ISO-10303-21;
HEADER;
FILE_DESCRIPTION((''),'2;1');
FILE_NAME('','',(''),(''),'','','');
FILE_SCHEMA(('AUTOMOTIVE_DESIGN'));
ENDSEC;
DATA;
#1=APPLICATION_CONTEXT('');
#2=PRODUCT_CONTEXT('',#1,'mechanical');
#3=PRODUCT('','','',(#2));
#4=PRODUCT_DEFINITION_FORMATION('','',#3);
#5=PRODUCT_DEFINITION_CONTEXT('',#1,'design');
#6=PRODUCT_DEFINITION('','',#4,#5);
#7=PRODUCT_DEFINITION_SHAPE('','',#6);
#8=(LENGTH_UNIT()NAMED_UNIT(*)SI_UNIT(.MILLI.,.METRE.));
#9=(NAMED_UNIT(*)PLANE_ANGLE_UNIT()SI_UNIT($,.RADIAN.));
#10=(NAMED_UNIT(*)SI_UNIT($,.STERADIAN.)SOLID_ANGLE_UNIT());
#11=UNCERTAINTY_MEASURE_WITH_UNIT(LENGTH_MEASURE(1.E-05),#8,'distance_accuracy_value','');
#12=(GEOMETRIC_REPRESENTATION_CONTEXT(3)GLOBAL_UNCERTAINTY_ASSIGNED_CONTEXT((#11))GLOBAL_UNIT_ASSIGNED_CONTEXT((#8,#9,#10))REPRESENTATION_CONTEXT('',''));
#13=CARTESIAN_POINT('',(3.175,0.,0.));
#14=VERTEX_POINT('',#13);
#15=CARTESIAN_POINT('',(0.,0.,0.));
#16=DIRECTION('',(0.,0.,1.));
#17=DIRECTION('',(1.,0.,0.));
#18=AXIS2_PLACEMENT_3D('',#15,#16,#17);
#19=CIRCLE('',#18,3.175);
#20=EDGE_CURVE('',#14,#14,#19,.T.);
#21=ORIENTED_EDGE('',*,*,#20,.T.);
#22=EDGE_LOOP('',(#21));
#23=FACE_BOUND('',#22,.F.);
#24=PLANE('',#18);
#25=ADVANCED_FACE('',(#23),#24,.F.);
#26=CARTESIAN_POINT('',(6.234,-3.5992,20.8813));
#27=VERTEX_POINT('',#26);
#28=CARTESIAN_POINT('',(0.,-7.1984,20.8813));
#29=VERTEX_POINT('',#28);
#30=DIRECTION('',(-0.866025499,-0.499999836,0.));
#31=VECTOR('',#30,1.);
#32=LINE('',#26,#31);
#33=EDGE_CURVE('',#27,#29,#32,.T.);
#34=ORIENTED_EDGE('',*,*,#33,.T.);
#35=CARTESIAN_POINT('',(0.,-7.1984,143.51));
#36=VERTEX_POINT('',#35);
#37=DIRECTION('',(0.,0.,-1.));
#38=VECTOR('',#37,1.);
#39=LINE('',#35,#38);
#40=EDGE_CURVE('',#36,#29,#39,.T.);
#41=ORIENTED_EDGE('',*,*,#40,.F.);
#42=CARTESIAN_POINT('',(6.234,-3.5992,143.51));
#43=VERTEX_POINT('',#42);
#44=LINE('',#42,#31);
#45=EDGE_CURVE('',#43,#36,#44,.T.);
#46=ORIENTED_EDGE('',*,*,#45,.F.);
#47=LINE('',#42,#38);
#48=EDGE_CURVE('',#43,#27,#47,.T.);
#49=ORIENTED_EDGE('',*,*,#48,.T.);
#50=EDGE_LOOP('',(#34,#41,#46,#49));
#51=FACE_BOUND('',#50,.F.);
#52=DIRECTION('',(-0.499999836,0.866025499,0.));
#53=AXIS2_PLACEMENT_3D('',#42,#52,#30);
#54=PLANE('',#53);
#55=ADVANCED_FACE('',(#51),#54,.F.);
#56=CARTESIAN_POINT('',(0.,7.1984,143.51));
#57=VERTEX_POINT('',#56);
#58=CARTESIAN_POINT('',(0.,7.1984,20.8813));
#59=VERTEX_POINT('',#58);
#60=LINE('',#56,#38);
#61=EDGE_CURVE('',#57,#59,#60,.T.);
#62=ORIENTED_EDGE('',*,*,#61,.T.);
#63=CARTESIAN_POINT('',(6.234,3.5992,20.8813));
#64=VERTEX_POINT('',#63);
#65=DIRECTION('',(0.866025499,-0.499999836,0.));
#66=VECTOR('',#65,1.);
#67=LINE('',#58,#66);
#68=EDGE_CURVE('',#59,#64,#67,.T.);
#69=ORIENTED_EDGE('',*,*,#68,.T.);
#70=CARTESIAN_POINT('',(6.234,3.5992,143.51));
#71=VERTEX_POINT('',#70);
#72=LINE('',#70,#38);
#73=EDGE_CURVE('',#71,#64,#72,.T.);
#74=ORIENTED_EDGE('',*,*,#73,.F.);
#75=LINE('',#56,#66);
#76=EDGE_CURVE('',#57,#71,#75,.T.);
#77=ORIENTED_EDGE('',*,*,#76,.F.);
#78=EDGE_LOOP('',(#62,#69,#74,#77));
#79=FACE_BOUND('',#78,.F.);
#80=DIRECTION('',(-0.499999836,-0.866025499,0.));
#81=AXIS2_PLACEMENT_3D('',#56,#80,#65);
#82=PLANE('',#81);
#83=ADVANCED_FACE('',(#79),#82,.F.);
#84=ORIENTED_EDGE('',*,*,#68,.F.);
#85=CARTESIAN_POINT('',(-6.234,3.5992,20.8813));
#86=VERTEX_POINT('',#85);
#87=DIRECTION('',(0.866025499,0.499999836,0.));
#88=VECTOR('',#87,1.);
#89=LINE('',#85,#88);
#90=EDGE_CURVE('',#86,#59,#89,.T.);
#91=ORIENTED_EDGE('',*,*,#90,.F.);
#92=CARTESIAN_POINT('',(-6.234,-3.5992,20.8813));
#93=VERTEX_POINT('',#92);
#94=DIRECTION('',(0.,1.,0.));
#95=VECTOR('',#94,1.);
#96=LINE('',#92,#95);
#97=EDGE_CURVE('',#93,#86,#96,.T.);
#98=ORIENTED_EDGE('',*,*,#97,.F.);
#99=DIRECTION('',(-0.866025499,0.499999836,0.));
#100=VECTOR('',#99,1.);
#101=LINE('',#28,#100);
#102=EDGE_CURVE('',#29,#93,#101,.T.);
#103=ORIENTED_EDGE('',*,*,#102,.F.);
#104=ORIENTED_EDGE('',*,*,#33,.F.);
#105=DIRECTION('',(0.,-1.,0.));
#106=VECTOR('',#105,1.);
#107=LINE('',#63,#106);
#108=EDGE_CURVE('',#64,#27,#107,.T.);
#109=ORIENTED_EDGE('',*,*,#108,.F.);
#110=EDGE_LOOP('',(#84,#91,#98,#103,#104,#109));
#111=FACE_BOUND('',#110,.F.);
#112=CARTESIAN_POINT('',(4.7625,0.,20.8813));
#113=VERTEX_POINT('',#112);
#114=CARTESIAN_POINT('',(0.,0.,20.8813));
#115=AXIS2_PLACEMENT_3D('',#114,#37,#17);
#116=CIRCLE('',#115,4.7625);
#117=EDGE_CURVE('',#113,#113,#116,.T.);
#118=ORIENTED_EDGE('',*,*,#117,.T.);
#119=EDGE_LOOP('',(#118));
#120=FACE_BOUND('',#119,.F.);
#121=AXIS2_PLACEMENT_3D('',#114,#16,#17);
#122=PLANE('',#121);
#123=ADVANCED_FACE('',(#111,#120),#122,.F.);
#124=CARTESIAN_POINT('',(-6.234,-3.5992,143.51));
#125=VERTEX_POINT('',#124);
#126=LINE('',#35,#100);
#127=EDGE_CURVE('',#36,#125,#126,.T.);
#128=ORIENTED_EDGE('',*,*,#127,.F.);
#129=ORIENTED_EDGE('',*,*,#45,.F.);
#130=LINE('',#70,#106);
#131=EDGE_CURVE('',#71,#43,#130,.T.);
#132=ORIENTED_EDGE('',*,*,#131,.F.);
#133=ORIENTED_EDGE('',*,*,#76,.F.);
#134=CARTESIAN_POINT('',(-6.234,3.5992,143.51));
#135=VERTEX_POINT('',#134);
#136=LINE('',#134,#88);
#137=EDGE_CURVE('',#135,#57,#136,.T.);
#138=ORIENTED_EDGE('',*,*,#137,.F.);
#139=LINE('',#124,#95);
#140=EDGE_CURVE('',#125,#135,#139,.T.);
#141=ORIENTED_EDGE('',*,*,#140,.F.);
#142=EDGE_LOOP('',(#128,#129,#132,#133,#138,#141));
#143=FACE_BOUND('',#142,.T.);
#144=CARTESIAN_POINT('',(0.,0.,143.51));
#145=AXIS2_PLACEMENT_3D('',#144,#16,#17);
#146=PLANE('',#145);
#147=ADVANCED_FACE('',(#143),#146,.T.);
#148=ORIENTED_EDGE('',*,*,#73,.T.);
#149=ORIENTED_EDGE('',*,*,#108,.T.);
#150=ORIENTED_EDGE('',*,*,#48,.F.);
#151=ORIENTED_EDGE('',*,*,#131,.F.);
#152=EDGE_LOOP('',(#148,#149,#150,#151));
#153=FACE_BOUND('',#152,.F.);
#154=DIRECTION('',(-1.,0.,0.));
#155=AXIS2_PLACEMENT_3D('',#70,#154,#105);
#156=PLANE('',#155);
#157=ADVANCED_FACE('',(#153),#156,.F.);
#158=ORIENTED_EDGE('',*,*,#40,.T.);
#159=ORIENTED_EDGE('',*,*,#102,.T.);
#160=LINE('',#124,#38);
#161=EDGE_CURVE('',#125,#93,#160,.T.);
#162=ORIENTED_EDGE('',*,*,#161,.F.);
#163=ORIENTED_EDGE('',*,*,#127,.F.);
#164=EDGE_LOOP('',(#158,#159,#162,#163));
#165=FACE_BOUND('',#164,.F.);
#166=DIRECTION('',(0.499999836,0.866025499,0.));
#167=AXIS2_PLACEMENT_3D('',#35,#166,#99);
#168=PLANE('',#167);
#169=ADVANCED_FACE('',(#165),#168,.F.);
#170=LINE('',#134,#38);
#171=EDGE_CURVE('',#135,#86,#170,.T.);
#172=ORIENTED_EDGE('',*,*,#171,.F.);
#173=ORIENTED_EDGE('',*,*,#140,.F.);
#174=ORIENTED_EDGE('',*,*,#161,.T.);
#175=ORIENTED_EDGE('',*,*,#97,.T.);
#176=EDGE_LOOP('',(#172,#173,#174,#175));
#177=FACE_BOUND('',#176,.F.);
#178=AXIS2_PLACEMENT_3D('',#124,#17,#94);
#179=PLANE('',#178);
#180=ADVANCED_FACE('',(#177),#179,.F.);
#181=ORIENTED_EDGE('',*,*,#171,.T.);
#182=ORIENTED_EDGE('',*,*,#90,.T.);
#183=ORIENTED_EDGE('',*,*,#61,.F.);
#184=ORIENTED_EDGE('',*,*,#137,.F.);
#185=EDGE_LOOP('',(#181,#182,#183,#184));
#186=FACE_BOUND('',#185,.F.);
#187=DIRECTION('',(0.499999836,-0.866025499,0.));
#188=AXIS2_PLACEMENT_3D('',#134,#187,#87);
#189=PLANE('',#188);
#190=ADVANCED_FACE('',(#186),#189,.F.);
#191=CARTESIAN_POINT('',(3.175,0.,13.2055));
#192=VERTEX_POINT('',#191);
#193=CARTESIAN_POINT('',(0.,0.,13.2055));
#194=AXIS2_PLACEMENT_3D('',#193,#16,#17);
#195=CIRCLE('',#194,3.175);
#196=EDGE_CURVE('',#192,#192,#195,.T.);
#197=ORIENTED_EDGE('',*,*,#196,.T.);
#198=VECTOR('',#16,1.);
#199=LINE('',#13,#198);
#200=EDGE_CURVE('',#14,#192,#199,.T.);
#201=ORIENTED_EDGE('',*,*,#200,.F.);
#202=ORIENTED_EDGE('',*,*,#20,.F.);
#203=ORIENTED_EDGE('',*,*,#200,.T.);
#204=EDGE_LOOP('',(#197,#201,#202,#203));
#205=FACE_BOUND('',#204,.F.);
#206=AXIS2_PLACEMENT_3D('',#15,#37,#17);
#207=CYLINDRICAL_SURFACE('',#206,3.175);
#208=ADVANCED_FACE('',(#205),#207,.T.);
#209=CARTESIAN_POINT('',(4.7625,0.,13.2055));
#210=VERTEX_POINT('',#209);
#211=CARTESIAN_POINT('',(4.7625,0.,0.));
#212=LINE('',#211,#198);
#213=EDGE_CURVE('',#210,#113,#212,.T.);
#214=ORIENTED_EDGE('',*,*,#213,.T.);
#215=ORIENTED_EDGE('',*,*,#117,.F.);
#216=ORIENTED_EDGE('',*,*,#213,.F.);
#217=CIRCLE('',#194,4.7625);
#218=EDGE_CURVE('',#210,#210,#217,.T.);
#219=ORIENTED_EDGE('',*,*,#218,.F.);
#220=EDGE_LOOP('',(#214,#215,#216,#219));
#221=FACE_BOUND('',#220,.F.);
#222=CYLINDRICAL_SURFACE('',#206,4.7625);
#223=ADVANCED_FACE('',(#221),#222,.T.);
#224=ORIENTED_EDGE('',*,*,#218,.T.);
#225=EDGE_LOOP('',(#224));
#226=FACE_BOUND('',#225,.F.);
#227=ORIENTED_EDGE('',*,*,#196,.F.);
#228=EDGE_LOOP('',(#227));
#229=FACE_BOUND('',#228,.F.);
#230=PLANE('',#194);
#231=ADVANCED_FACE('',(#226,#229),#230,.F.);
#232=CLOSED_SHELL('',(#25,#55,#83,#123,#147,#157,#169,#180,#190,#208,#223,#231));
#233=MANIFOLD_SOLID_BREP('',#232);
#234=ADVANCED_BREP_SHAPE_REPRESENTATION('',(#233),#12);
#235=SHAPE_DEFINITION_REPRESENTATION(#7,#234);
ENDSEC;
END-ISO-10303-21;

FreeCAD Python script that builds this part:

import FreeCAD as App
import Part
import Sketcher
Q = App.Units.Quantity


def add_polygon(sketch, points):
    """Adds a closed chain of lines whose ends are joined by coincident constraints."""
    first, n = sketch.GeometryCount, len(points)
    for a, b in zip(points, points[1:] + points[:1]):
        sketch.addGeometry(Part.LineSegment(App.Vector(*a, 0), App.Vector(*b, 0)), False)
    for i in range(n):
        sketch.addConstraint(Sketcher.Constraint("Coincident", first + i, 2, first + (i + 1) % n, 1))

doc = App.newDocument("Part")
body = doc.addObject("PartDesign::Body", "Body")

# Sketch on XY plane
sketch1 = doc.addObject("Sketcher::SketchObject", "Sketch")
body.addObject(sketch1)
sketch1.AttachmentSupport = (doc.XY_Plane, [""])
sketch1.MapMode = "FlatFace"
sketch1.addGeometry(Part.Circle(App.Vector(0, 0, 0), App.Vector(0, 0, 1), 4.8), False)
sketch1.addConstraint(Sketcher.Constraint("Coincident", 0, 3, -1, 1))
sketch1.addConstraint(Sketcher.Constraint("Diameter", 0, Q("0.375 in")))
pad1 = doc.addObject("PartDesign::Pad", "Pad")
body.addObject(pad1)
pad1.Profile = sketch1
pad1.Length = Q("5.65 in")

# Sketch on XY plane
sketch2 = doc.addObject("Sketcher::SketchObject", "Sketch001")
body.addObject(sketch2)
sketch2.AttachmentSupport = (doc.XY_Plane, [""])
sketch2.MapMode = "FlatFace"
sketch2.addGeometry(Part.Circle(App.Vector(0, 0, 0), App.Vector(0, 0, 1), 4.8), False)
sketch2.addGeometry(Part.Circle(App.Vector(0, 0, 0), App.Vector(0, 0, 1), 3.2), False)
sketch2.addConstraint(Sketcher.Constraint("Coincident", 0, 3, -1, 1))
sketch2.addConstraint(Sketcher.Constraint("Coincident", 1, 3, -1, 1))
sketch2.addConstraint(Sketcher.Constraint("Diameter", 1, Q("0.25 in")))
sketch2.addConstraint(Sketcher.Constraint("Diameter", 0, Q("0.375 in")))
pocket1 = doc.addObject("PartDesign::Pocket", "Pocket")
body.addObject(pocket1)
pocket1.Profile = sketch2
pocket1.Length = Q("0.5199016 in")
pocket1.Reversed = True

# Sketch on XY plane
sketch3 = doc.addObject("Sketcher::SketchObject", "Sketch002")
body.addObject(sketch3)
sketch3.AttachmentSupport = (doc.XY_Plane, [""])
sketch3.MapMode = "FlatFace"
sketch3.AttachmentOffset = App.Placement(App.Vector(0, 0, 5.65 * 25.4), App.Rotation())
add_polygon(sketch3, [(-6.2, -3.6), (0, -7.2), (6.2, -3.6), (6.2, 3.6), (0, 7.2), (-6.2, 3.6)])  # lines 0-5
sketch3.addGeometry(Part.Circle(App.Vector(0, 0, 0), App.Vector(0, 0, 1), 3.2), False)  # 6
sketch3.addConstraint(Sketcher.Constraint("Vertical", 2))
sketch3.addConstraint(Sketcher.Constraint("Vertical", 5))
sketch3.addConstraint(Sketcher.Constraint("Coincident", 6, 3, -1, 1))
sketch3.addConstraint(Sketcher.Constraint("Symmetric", 0, 2, 3, 2, -1, 1))
sketch3.addConstraint(Sketcher.Constraint("Symmetric", 1, 2, 4, 2, -1, 1))
sketch3.addConstraint(Sketcher.Constraint("PointOnObject", 0, 2, -2))
sketch3.addConstraint(Sketcher.Constraint("Parallel", 0, 3))
sketch3.addConstraint(Sketcher.Constraint("Horizontal", 2, 2, 4, 2))
sketch3.addConstraint(Sketcher.Constraint("Diameter", 6, Q("0.25 in")))
sketch3.addConstraint(Sketcher.Constraint("Angle", 0, Q("-30 deg")))
sketch3.addConstraint(Sketcher.Constraint("DistanceY", 0, 2, 3, 2, Q("0.5668 in")))
sketch3.addConstraint(Sketcher.Constraint("DistanceY", 2, 1, 2, 2, Q("0.2834 in")))
pad2 = doc.addObject("PartDesign::Pad", "Pad001")
body.addObject(pad2)
pad2.Profile = sketch3
pad2.Length = Q("4.8279016 in")
pad2.Reversed = True

doc.recompute()
